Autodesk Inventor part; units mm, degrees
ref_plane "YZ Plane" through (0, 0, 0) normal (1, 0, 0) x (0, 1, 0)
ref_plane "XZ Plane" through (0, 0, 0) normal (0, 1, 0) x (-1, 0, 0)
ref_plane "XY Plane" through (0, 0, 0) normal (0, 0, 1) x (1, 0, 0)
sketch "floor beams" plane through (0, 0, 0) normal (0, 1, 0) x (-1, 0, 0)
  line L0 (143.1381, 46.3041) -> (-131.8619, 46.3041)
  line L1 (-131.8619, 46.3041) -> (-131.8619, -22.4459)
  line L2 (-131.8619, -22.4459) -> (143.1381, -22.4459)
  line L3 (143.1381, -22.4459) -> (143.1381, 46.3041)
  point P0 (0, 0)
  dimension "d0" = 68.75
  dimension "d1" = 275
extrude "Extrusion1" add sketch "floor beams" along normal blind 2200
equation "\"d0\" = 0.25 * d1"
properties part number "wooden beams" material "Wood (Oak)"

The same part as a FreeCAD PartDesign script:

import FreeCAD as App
import Part
import Sketcher
Q = App.Units.Quantity

doc = App.newDocument("Part")
params = doc.addObject("Spreadsheet::Sheet", "Params")
for row, (alias, value) in enumerate([
    ("sketch1_width", "275 mm"),
    ("sketch1_height", "68.75 mm"),
    ("pad1_length", "2200 mm"),
], start=1):
    params.set(f"A{row}", alias)
    params.set(f"B{row}", "=" + value)
    params.setAlias(f"B{row}", alias)

body = doc.addObject("PartDesign::Body", "Body")

# Sketch on XZ plane
sketch1 = doc.addObject("Sketcher::SketchObject", "Sketch")
body.addObject(sketch1)
sketch1.AttachmentSupport = (doc.XZ_Plane, [""])
sketch1.MapMode = "FlatFace"
sketch1.addGeometry([
    Part.LineSegment(App.Vector(-143.1381, -22.4459, 0), App.Vector(-143.1381, 46.3041, 0)),
    Part.LineSegment(App.Vector(-143.1381, 46.3041, 0), App.Vector(131.8619, 46.3041, 0)),
    Part.LineSegment(App.Vector(131.8619, 46.3041, 0), App.Vector(131.8619, -22.4459, 0)),
    Part.LineSegment(App.Vector(131.8619, -22.4459, 0), App.Vector(-143.1381, -22.4459, 0)),
], False)
sketch1.addConstraint([
    Sketcher.Constraint("Coincident", 0, 2, 1, 1),
    Sketcher.Constraint("Coincident", 1, 2, 2, 1),
    Sketcher.Constraint("Coincident", 2, 2, 3, 1),
    Sketcher.Constraint("Coincident", 3, 2, 0, 1),
    Sketcher.Constraint("Vertical", 0),
    Sketcher.Constraint("Horizontal", 1),
    Sketcher.Constraint("Vertical", 2),
    Sketcher.Constraint("Horizontal", 3),
    Sketcher.Constraint("DistanceX", 1, 1, 1, 2, Q("275 mm")),
    Sketcher.Constraint("DistanceY", 0, 1, 0, 2, Q("68.75 mm")),
    Sketcher.Constraint("DistanceX", 0, 2, -1, 1, Q("143.138 mm")),
    Sketcher.Constraint("DistanceY", -1, 1, 0, 2, Q("46.304 mm")),
])
sketch1.setExpression("Constraints[8]", "Params.sketch1_width")
sketch1.setExpression("Constraints[9]", "Params.sketch1_height")
pad1 = doc.addObject("PartDesign::Pad", "Pad")
body.addObject(pad1)
pad1.Profile = sketch1
pad1.setExpression("Length", "Params.pad1_length")
pad1.Reversed = True

doc.recompute()
